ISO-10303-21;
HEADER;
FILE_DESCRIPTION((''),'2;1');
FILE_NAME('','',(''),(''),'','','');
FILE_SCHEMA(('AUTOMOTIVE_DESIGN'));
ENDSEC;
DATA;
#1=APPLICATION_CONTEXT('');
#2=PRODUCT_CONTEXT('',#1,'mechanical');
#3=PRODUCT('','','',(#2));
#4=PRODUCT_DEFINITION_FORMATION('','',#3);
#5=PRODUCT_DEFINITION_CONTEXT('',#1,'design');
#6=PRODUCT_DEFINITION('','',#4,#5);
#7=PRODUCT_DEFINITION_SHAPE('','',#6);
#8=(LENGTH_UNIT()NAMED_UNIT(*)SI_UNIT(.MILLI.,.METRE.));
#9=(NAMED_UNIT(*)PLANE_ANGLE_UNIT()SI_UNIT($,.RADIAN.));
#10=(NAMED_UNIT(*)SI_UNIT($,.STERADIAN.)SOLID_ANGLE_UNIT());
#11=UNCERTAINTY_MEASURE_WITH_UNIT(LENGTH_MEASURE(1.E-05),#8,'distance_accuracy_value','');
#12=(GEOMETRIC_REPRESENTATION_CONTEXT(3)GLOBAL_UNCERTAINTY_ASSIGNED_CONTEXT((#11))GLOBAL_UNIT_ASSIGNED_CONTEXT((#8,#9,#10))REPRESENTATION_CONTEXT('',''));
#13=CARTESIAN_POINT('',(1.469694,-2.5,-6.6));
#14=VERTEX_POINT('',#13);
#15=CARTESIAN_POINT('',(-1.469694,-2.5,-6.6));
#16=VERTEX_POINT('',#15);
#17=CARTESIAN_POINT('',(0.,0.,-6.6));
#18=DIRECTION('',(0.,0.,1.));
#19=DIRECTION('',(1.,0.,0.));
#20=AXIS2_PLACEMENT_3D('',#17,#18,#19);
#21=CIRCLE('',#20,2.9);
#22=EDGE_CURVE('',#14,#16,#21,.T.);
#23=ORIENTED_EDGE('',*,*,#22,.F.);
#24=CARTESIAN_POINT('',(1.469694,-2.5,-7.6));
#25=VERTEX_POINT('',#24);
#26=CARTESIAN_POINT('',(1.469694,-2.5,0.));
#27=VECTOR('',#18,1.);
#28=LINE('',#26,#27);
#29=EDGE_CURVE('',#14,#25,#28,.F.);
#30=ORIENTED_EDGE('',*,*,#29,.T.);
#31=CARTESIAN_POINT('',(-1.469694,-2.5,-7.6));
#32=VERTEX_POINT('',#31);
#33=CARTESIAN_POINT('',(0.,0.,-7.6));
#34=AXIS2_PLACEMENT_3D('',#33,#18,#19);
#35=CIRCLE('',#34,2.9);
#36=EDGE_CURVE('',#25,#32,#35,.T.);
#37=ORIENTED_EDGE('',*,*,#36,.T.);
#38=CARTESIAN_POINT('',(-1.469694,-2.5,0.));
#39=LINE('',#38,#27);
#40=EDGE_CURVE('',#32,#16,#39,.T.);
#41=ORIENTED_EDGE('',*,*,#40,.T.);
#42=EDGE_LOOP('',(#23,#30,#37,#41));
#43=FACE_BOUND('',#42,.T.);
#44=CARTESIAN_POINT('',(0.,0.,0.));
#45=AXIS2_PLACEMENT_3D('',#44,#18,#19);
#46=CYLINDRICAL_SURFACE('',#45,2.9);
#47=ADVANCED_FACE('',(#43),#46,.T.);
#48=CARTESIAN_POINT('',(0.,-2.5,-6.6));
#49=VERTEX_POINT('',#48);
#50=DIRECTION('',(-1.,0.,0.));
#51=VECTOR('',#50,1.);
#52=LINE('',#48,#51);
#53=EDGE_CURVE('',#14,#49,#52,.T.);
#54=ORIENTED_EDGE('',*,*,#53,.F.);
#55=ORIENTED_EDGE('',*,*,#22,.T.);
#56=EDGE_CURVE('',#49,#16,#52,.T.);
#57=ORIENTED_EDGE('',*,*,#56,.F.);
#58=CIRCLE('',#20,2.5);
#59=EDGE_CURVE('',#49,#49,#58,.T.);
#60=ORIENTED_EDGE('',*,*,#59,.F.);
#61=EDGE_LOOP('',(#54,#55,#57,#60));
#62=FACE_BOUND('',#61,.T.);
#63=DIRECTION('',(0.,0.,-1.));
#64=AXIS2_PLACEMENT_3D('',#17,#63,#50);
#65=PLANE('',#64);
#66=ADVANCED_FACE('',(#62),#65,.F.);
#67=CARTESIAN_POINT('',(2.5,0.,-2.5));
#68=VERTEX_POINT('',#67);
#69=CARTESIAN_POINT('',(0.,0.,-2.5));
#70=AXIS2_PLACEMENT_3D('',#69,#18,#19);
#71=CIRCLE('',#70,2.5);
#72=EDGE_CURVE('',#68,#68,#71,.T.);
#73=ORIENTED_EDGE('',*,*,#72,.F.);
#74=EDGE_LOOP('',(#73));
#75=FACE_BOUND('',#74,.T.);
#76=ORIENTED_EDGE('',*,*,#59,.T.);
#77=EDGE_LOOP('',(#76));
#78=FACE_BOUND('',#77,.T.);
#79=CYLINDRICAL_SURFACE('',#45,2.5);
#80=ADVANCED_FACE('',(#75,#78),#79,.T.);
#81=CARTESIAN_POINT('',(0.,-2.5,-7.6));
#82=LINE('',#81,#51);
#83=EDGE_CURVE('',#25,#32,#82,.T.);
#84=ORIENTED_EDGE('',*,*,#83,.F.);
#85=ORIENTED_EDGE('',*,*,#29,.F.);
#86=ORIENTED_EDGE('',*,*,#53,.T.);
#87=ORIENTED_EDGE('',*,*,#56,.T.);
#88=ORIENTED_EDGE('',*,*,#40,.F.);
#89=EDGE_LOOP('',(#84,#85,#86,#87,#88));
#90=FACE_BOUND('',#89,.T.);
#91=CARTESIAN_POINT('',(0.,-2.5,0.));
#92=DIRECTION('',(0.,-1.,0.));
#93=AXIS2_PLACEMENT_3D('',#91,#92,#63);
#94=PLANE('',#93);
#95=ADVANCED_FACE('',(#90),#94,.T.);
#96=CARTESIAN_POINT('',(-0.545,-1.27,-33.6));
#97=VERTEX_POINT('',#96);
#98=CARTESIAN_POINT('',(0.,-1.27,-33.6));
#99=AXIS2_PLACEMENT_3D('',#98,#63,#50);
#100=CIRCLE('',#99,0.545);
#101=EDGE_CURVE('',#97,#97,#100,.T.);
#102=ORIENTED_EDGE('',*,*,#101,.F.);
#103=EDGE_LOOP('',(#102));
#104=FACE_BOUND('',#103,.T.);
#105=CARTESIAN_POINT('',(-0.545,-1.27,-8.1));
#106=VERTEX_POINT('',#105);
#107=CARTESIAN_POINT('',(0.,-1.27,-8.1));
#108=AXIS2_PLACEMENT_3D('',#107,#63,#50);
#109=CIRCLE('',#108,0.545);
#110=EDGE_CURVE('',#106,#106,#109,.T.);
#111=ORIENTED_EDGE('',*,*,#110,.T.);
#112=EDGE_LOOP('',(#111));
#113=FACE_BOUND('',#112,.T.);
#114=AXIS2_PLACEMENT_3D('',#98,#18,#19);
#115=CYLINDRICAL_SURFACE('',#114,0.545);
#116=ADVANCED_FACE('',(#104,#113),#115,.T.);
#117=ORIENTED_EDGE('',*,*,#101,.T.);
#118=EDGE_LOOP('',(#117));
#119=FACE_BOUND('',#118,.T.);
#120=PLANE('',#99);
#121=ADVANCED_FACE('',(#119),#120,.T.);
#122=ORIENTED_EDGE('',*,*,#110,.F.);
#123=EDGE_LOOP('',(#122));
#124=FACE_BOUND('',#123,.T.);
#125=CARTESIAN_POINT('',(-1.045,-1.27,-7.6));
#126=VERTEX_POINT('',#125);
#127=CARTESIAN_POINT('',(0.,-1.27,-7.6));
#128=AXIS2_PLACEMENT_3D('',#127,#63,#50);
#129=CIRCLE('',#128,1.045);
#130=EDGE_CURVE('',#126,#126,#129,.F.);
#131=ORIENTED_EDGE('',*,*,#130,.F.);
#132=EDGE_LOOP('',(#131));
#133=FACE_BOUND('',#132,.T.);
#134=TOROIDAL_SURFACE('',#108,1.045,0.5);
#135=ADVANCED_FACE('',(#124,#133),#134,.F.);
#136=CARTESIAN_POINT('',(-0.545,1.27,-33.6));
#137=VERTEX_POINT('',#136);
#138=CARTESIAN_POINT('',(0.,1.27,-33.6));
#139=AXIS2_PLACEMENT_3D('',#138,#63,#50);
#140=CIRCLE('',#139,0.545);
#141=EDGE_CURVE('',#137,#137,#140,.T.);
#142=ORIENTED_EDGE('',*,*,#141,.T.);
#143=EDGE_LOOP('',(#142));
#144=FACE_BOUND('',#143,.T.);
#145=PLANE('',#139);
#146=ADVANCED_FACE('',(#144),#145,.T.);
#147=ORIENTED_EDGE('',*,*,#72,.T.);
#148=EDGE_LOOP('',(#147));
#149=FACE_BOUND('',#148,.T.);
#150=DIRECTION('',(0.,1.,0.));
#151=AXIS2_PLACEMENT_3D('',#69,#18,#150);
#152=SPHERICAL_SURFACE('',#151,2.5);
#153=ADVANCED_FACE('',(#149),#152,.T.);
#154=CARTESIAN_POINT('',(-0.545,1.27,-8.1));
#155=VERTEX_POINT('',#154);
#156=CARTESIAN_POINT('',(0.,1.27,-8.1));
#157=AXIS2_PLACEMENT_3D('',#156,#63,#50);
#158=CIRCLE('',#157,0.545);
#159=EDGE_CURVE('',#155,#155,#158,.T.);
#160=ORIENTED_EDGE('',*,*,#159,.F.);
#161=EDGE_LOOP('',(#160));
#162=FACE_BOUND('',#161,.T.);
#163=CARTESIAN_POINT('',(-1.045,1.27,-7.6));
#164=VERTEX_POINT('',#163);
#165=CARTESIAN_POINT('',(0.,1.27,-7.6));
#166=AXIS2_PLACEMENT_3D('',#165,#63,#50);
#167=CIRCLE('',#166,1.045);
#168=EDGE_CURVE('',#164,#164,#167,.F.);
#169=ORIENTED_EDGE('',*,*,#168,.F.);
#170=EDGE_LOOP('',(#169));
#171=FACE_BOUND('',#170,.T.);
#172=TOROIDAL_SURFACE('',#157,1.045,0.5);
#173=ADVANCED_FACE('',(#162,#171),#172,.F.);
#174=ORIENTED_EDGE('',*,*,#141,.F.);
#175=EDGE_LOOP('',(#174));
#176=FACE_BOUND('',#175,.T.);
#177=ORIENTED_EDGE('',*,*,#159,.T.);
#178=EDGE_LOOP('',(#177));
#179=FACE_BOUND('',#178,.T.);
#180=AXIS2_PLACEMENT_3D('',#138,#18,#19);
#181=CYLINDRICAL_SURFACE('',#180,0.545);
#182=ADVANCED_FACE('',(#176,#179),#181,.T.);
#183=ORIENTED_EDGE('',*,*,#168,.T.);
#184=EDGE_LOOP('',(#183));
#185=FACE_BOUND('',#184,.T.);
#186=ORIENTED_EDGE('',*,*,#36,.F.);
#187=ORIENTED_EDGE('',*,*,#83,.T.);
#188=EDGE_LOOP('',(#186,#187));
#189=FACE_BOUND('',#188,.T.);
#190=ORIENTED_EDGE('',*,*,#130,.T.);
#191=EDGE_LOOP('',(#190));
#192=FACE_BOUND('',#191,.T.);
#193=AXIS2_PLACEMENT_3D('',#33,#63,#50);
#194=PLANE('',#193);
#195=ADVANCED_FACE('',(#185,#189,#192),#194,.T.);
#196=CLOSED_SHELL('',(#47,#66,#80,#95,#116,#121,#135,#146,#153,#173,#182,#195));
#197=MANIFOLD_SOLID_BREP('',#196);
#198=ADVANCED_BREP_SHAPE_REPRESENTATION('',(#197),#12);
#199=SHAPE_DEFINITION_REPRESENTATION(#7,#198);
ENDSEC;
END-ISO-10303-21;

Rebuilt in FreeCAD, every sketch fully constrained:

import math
import FreeCAD as App
import Part
import Sketcher

V = App.Vector
Q = App.Units.Quantity


def edges_at(feature, points):
    """Names of the edges that pass closest to the given points."""
    edges = feature.Shape.Edges
    near = lambda p: min(range(len(edges)), key=lambda i: edges[i].distToShape(Part.Vertex(*p))[0])
    return sorted({f"Edge{near(p) + 1}" for p in points})

doc = App.newDocument("Part")
body = doc.addObject("PartDesign::Body", "Body")

sketch1 = body.newObject("Sketcher::SketchObject", "Sketch")
sketch1.AttachmentSupport = (doc.getObject("YZ_Plane"), [""])
sketch1.MapMode = "FlatFace"
sketch1.addGeometry(Part.LineSegment(V(2.5, -6.6, 0), V(2.5, -2.5, 0)), False)
sketch1.addGeometry(Part.ArcOfCircle(Part.Circle(V(0, -2.5, 0), V(0, 0, 1), 2.5), math.radians(0), math.radians(90)), False)
sketch1.addGeometry(Part.LineSegment(V(0, 0, 0), V(0, -7.6, 0)), False)
sketch1.addGeometry(Part.LineSegment(V(0, -7.6, 0), V(2.9, -7.6, 0)), False)
sketch1.addGeometry(Part.LineSegment(V(2.9, -7.6, 0), V(2.9, -6.6, 0)), False)
sketch1.addGeometry(Part.LineSegment(V(2.9, -6.6, 0), V(2.5, -6.6, 0)), False)
sketch1.addConstraint(Sketcher.Constraint("Tangent", 0, 2, 1, 1))
sketch1.addConstraint(Sketcher.Constraint("Coincident", 1, 2, 2, 1))
sketch1.addConstraint(Sketcher.Constraint("Coincident", 2, 2, 3, 1))
sketch1.addConstraint(Sketcher.Constraint("Coincident", 3, 2, 4, 1))
sketch1.addConstraint(Sketcher.Constraint("Coincident", 4, 2, 5, 1))
sketch1.addConstraint(Sketcher.Constraint("Coincident", 5, 2, 0, 1))
sketch1.addConstraint(Sketcher.Constraint("Vertical", 0))
sketch1.addConstraint(Sketcher.Constraint("Vertical", 2))
sketch1.addConstraint(Sketcher.Constraint("Horizontal", 3))
sketch1.addConstraint(Sketcher.Constraint("Vertical", 4))
sketch1.addConstraint(Sketcher.Constraint("Horizontal", 5))
sketch1.addConstraint(Sketcher.Constraint("Coincident", 1, 2, -1, 1))
sketch1.addConstraint(Sketcher.Constraint("PointOnObject", 1, 3, -2))
sketch1.addConstraint(Sketcher.Constraint("Radius", 1, Q("2.5 mm")))
sketch1.addConstraint(Sketcher.Constraint("DistanceY", 4, 1, 4, 2, Q("1 mm")))
sketch1.addConstraint(Sketcher.Constraint("DistanceX", 3, 1, 3, 2, Q("2.9 mm")))
sketch1.addConstraint(Sketcher.Constraint("DistanceY", 0, 1, 0, 2, Q("4.1 mm")))
revolution = body.newObject("PartDesign::Revolution", "Revolution")
revolution.Profile = sketch1
revolution.ReferenceAxis = (sketch1, ["V_Axis"])
revolution.Angle = 360

sketch2 = body.newObject("Sketcher::SketchObject", "Sketch001")
sketch2.AttachmentSupport = (doc.getObject("XY_Plane"), [""])
sketch2.MapMode = "FlatFace"
sketch2.AttachmentOffset = App.Placement(V(0, 0, -7.6), App.Rotation())
sketch2.addGeometry(Part.Circle(V(0, 1.3, 0), V(0, 0, 1), 0.5), False)
sketch2.addGeometry(Part.Circle(V(0, -1.3, 0), V(0, 0, 1), 0.5), False)
sketch2.addConstraint(Sketcher.Constraint("Equal", 0, 1))
sketch2.addConstraint(Sketcher.Constraint("Symmetric", 0, 3, 1, 3, -1, 1))
sketch2.addConstraint(Sketcher.Constraint("PointOnObject", 0, 3, -2))
sketch2.addConstraint(Sketcher.Constraint("Diameter", 0, Q("1.09 mm")))
sketch2.addConstraint(Sketcher.Constraint("DistanceY", -1, 1, 0, 3, Q("1.27 mm")))
pad1 = body.newObject("PartDesign::Pad", "Pad")
pad1.Profile = sketch2
pad1.Length = 26
pad1.Reversed = True

sketch3 = body.newObject("Sketcher::SketchObject", "Sketch002")
sketch3.AttachmentSupport = (doc.getObject("XZ_Plane"), [""])
sketch3.MapMode = "FlatFace"
sketch3.AttachmentOffset = App.Placement(V(0, 0, 2.5), App.Rotation())
sketch3.addGeometry(Part.LineSegment(V(16, -19, 0), V(16, -3, 0)), False)
sketch3.addGeometry(Part.LineSegment(V(16, -3, 0), V(-6, -3, 0)), False)
sketch3.addGeometry(Part.LineSegment(V(-6, -3, 0), V(-6, -19, 0)), False)
sketch3.addGeometry(Part.LineSegment(V(-6, -19, 0), V(16, -19, 0)), False)
sketch3.addConstraint(Sketcher.Constraint("Coincident", 0, 2, 1, 1))
sketch3.addConstraint(Sketcher.Constraint("Coincident", 1, 2, 2, 1))
sketch3.addConstraint(Sketcher.Constraint("Coincident", 2, 2, 3, 1))
sketch3.addConstraint(Sketcher.Constraint("Coincident", 3, 2, 0, 1))
sketch3.addConstraint(Sketcher.Constraint("Vertical", 0))
sketch3.addConstraint(Sketcher.Constraint("Horizontal", 1))
sketch3.addConstraint(Sketcher.Constraint("Vertical", 2))
sketch3.addConstraint(Sketcher.Constraint("Horizontal", 3))
sketch3.addConstraint(Sketcher.Constraint("DistanceX", 1, 2, -1, 1, Q("6.092098 mm")))
sketch3.addConstraint(Sketcher.Constraint("DistanceX", 1, 2, 1, 1, Q("21.745407 mm")))
sketch3.addConstraint(Sketcher.Constraint("DistanceY", 0, 1, 0, 2, Q("16.160983 mm")))
sketch3.addConstraint(Sketcher.Constraint("DistanceY", 2, 2, -1, 1, Q("19.169149 mm")))
pocket1 = body.newObject("PartDesign::Pocket", "Pocket")
pocket1.Profile = sketch3
pocket1.Length = 660
pocket1.Reversed = True
doc.recompute()

fillet = body.newObject("PartDesign::Fillet", "Fillet")
fillet.Base = (pocket1, edges_at(pocket1, [(0.545, 1.27, -7.6), (0.545, -1.27, -7.6)]))
fillet.Radius = 0.5

doc.recompute()
